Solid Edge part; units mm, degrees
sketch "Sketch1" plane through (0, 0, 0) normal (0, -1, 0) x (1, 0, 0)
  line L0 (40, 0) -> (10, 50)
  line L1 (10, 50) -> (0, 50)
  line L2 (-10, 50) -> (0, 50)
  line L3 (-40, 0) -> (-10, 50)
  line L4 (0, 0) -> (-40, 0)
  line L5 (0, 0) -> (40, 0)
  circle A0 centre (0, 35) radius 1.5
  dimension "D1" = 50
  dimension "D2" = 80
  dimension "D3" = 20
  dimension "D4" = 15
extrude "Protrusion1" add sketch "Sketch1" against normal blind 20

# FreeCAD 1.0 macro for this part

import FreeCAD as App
import Part
import Sketcher

V = App.Vector

doc = App.newDocument("Part")
body = doc.addObject("PartDesign::Body", "Body")

# Sketch on XZ plane
sketch1 = body.newObject("Sketcher::SketchObject", "Sketch")
sketch1.AttachmentSupport = (doc.getObject("XZ_Plane"), [""])
sketch1.MapMode = "FlatFace"
sketch1.addGeometry(Part.LineSegment(V(-40, 0, 0), V(40, 0, 0)), False)
sketch1.addGeometry(Part.LineSegment(V(40, 0, 0), V(10, 50, 0)), False)
sketch1.addGeometry(Part.LineSegment(V(10, 50, 0), V(-10, 50, 0)), False)
sketch1.addGeometry(Part.LineSegment(V(-10, 50, 0), V(-40, 0, 0)), False)
sketch1.addGeometry(Part.Circle(V(0, 35, 0), V(0, 0, 1), 1.5), False)
sketch1.addConstraint(Sketcher.Constraint("Coincident", 0, 2, 1, 1))
sketch1.addConstraint(Sketcher.Constraint("Coincident", 1, 2, 2, 1))
sketch1.addConstraint(Sketcher.Constraint("Coincident", 2, 2, 3, 1))
sketch1.addConstraint(Sketcher.Constraint("Coincident", 3, 2, 0, 1))
sketch1.addConstraint(Sketcher.Constraint("Horizontal", 0))
sketch1.addConstraint(Sketcher.Constraint("Horizontal", 2))
sketch1.addConstraint(Sketcher.Constraint("Symmetric", 0, 2, 3, 2, -1, 1))
sketch1.addConstraint(Sketcher.Constraint("PointOnObject", 4, 3, -2))
sketch1.addConstraint(Sketcher.Constraint("Equal", 1, 3))
sketch1.addConstraint(Sketcher.Constraint("Diameter", 4, 3.0))
sketch1.addConstraint(Sketcher.Constraint("DistanceX", 0, 1, 0, 2, 80.0))
sketch1.addConstraint(Sketcher.Constraint("DistanceX", 2, 2, 2, 1, 20.0))
sketch1.addConstraint(Sketcher.Constraint("DistanceY", -1, 1, 4, 3, 35.0))
sketch1.addConstraint(Sketcher.Constraint("DistanceY", -1, 1, 1, 2, 50.0))
pad1 = body.newObject("PartDesign::Pad", "Pad")
pad1.Profile = sketch1
pad1.Length = 20
pad1.Reversed = True

doc.recompute()
